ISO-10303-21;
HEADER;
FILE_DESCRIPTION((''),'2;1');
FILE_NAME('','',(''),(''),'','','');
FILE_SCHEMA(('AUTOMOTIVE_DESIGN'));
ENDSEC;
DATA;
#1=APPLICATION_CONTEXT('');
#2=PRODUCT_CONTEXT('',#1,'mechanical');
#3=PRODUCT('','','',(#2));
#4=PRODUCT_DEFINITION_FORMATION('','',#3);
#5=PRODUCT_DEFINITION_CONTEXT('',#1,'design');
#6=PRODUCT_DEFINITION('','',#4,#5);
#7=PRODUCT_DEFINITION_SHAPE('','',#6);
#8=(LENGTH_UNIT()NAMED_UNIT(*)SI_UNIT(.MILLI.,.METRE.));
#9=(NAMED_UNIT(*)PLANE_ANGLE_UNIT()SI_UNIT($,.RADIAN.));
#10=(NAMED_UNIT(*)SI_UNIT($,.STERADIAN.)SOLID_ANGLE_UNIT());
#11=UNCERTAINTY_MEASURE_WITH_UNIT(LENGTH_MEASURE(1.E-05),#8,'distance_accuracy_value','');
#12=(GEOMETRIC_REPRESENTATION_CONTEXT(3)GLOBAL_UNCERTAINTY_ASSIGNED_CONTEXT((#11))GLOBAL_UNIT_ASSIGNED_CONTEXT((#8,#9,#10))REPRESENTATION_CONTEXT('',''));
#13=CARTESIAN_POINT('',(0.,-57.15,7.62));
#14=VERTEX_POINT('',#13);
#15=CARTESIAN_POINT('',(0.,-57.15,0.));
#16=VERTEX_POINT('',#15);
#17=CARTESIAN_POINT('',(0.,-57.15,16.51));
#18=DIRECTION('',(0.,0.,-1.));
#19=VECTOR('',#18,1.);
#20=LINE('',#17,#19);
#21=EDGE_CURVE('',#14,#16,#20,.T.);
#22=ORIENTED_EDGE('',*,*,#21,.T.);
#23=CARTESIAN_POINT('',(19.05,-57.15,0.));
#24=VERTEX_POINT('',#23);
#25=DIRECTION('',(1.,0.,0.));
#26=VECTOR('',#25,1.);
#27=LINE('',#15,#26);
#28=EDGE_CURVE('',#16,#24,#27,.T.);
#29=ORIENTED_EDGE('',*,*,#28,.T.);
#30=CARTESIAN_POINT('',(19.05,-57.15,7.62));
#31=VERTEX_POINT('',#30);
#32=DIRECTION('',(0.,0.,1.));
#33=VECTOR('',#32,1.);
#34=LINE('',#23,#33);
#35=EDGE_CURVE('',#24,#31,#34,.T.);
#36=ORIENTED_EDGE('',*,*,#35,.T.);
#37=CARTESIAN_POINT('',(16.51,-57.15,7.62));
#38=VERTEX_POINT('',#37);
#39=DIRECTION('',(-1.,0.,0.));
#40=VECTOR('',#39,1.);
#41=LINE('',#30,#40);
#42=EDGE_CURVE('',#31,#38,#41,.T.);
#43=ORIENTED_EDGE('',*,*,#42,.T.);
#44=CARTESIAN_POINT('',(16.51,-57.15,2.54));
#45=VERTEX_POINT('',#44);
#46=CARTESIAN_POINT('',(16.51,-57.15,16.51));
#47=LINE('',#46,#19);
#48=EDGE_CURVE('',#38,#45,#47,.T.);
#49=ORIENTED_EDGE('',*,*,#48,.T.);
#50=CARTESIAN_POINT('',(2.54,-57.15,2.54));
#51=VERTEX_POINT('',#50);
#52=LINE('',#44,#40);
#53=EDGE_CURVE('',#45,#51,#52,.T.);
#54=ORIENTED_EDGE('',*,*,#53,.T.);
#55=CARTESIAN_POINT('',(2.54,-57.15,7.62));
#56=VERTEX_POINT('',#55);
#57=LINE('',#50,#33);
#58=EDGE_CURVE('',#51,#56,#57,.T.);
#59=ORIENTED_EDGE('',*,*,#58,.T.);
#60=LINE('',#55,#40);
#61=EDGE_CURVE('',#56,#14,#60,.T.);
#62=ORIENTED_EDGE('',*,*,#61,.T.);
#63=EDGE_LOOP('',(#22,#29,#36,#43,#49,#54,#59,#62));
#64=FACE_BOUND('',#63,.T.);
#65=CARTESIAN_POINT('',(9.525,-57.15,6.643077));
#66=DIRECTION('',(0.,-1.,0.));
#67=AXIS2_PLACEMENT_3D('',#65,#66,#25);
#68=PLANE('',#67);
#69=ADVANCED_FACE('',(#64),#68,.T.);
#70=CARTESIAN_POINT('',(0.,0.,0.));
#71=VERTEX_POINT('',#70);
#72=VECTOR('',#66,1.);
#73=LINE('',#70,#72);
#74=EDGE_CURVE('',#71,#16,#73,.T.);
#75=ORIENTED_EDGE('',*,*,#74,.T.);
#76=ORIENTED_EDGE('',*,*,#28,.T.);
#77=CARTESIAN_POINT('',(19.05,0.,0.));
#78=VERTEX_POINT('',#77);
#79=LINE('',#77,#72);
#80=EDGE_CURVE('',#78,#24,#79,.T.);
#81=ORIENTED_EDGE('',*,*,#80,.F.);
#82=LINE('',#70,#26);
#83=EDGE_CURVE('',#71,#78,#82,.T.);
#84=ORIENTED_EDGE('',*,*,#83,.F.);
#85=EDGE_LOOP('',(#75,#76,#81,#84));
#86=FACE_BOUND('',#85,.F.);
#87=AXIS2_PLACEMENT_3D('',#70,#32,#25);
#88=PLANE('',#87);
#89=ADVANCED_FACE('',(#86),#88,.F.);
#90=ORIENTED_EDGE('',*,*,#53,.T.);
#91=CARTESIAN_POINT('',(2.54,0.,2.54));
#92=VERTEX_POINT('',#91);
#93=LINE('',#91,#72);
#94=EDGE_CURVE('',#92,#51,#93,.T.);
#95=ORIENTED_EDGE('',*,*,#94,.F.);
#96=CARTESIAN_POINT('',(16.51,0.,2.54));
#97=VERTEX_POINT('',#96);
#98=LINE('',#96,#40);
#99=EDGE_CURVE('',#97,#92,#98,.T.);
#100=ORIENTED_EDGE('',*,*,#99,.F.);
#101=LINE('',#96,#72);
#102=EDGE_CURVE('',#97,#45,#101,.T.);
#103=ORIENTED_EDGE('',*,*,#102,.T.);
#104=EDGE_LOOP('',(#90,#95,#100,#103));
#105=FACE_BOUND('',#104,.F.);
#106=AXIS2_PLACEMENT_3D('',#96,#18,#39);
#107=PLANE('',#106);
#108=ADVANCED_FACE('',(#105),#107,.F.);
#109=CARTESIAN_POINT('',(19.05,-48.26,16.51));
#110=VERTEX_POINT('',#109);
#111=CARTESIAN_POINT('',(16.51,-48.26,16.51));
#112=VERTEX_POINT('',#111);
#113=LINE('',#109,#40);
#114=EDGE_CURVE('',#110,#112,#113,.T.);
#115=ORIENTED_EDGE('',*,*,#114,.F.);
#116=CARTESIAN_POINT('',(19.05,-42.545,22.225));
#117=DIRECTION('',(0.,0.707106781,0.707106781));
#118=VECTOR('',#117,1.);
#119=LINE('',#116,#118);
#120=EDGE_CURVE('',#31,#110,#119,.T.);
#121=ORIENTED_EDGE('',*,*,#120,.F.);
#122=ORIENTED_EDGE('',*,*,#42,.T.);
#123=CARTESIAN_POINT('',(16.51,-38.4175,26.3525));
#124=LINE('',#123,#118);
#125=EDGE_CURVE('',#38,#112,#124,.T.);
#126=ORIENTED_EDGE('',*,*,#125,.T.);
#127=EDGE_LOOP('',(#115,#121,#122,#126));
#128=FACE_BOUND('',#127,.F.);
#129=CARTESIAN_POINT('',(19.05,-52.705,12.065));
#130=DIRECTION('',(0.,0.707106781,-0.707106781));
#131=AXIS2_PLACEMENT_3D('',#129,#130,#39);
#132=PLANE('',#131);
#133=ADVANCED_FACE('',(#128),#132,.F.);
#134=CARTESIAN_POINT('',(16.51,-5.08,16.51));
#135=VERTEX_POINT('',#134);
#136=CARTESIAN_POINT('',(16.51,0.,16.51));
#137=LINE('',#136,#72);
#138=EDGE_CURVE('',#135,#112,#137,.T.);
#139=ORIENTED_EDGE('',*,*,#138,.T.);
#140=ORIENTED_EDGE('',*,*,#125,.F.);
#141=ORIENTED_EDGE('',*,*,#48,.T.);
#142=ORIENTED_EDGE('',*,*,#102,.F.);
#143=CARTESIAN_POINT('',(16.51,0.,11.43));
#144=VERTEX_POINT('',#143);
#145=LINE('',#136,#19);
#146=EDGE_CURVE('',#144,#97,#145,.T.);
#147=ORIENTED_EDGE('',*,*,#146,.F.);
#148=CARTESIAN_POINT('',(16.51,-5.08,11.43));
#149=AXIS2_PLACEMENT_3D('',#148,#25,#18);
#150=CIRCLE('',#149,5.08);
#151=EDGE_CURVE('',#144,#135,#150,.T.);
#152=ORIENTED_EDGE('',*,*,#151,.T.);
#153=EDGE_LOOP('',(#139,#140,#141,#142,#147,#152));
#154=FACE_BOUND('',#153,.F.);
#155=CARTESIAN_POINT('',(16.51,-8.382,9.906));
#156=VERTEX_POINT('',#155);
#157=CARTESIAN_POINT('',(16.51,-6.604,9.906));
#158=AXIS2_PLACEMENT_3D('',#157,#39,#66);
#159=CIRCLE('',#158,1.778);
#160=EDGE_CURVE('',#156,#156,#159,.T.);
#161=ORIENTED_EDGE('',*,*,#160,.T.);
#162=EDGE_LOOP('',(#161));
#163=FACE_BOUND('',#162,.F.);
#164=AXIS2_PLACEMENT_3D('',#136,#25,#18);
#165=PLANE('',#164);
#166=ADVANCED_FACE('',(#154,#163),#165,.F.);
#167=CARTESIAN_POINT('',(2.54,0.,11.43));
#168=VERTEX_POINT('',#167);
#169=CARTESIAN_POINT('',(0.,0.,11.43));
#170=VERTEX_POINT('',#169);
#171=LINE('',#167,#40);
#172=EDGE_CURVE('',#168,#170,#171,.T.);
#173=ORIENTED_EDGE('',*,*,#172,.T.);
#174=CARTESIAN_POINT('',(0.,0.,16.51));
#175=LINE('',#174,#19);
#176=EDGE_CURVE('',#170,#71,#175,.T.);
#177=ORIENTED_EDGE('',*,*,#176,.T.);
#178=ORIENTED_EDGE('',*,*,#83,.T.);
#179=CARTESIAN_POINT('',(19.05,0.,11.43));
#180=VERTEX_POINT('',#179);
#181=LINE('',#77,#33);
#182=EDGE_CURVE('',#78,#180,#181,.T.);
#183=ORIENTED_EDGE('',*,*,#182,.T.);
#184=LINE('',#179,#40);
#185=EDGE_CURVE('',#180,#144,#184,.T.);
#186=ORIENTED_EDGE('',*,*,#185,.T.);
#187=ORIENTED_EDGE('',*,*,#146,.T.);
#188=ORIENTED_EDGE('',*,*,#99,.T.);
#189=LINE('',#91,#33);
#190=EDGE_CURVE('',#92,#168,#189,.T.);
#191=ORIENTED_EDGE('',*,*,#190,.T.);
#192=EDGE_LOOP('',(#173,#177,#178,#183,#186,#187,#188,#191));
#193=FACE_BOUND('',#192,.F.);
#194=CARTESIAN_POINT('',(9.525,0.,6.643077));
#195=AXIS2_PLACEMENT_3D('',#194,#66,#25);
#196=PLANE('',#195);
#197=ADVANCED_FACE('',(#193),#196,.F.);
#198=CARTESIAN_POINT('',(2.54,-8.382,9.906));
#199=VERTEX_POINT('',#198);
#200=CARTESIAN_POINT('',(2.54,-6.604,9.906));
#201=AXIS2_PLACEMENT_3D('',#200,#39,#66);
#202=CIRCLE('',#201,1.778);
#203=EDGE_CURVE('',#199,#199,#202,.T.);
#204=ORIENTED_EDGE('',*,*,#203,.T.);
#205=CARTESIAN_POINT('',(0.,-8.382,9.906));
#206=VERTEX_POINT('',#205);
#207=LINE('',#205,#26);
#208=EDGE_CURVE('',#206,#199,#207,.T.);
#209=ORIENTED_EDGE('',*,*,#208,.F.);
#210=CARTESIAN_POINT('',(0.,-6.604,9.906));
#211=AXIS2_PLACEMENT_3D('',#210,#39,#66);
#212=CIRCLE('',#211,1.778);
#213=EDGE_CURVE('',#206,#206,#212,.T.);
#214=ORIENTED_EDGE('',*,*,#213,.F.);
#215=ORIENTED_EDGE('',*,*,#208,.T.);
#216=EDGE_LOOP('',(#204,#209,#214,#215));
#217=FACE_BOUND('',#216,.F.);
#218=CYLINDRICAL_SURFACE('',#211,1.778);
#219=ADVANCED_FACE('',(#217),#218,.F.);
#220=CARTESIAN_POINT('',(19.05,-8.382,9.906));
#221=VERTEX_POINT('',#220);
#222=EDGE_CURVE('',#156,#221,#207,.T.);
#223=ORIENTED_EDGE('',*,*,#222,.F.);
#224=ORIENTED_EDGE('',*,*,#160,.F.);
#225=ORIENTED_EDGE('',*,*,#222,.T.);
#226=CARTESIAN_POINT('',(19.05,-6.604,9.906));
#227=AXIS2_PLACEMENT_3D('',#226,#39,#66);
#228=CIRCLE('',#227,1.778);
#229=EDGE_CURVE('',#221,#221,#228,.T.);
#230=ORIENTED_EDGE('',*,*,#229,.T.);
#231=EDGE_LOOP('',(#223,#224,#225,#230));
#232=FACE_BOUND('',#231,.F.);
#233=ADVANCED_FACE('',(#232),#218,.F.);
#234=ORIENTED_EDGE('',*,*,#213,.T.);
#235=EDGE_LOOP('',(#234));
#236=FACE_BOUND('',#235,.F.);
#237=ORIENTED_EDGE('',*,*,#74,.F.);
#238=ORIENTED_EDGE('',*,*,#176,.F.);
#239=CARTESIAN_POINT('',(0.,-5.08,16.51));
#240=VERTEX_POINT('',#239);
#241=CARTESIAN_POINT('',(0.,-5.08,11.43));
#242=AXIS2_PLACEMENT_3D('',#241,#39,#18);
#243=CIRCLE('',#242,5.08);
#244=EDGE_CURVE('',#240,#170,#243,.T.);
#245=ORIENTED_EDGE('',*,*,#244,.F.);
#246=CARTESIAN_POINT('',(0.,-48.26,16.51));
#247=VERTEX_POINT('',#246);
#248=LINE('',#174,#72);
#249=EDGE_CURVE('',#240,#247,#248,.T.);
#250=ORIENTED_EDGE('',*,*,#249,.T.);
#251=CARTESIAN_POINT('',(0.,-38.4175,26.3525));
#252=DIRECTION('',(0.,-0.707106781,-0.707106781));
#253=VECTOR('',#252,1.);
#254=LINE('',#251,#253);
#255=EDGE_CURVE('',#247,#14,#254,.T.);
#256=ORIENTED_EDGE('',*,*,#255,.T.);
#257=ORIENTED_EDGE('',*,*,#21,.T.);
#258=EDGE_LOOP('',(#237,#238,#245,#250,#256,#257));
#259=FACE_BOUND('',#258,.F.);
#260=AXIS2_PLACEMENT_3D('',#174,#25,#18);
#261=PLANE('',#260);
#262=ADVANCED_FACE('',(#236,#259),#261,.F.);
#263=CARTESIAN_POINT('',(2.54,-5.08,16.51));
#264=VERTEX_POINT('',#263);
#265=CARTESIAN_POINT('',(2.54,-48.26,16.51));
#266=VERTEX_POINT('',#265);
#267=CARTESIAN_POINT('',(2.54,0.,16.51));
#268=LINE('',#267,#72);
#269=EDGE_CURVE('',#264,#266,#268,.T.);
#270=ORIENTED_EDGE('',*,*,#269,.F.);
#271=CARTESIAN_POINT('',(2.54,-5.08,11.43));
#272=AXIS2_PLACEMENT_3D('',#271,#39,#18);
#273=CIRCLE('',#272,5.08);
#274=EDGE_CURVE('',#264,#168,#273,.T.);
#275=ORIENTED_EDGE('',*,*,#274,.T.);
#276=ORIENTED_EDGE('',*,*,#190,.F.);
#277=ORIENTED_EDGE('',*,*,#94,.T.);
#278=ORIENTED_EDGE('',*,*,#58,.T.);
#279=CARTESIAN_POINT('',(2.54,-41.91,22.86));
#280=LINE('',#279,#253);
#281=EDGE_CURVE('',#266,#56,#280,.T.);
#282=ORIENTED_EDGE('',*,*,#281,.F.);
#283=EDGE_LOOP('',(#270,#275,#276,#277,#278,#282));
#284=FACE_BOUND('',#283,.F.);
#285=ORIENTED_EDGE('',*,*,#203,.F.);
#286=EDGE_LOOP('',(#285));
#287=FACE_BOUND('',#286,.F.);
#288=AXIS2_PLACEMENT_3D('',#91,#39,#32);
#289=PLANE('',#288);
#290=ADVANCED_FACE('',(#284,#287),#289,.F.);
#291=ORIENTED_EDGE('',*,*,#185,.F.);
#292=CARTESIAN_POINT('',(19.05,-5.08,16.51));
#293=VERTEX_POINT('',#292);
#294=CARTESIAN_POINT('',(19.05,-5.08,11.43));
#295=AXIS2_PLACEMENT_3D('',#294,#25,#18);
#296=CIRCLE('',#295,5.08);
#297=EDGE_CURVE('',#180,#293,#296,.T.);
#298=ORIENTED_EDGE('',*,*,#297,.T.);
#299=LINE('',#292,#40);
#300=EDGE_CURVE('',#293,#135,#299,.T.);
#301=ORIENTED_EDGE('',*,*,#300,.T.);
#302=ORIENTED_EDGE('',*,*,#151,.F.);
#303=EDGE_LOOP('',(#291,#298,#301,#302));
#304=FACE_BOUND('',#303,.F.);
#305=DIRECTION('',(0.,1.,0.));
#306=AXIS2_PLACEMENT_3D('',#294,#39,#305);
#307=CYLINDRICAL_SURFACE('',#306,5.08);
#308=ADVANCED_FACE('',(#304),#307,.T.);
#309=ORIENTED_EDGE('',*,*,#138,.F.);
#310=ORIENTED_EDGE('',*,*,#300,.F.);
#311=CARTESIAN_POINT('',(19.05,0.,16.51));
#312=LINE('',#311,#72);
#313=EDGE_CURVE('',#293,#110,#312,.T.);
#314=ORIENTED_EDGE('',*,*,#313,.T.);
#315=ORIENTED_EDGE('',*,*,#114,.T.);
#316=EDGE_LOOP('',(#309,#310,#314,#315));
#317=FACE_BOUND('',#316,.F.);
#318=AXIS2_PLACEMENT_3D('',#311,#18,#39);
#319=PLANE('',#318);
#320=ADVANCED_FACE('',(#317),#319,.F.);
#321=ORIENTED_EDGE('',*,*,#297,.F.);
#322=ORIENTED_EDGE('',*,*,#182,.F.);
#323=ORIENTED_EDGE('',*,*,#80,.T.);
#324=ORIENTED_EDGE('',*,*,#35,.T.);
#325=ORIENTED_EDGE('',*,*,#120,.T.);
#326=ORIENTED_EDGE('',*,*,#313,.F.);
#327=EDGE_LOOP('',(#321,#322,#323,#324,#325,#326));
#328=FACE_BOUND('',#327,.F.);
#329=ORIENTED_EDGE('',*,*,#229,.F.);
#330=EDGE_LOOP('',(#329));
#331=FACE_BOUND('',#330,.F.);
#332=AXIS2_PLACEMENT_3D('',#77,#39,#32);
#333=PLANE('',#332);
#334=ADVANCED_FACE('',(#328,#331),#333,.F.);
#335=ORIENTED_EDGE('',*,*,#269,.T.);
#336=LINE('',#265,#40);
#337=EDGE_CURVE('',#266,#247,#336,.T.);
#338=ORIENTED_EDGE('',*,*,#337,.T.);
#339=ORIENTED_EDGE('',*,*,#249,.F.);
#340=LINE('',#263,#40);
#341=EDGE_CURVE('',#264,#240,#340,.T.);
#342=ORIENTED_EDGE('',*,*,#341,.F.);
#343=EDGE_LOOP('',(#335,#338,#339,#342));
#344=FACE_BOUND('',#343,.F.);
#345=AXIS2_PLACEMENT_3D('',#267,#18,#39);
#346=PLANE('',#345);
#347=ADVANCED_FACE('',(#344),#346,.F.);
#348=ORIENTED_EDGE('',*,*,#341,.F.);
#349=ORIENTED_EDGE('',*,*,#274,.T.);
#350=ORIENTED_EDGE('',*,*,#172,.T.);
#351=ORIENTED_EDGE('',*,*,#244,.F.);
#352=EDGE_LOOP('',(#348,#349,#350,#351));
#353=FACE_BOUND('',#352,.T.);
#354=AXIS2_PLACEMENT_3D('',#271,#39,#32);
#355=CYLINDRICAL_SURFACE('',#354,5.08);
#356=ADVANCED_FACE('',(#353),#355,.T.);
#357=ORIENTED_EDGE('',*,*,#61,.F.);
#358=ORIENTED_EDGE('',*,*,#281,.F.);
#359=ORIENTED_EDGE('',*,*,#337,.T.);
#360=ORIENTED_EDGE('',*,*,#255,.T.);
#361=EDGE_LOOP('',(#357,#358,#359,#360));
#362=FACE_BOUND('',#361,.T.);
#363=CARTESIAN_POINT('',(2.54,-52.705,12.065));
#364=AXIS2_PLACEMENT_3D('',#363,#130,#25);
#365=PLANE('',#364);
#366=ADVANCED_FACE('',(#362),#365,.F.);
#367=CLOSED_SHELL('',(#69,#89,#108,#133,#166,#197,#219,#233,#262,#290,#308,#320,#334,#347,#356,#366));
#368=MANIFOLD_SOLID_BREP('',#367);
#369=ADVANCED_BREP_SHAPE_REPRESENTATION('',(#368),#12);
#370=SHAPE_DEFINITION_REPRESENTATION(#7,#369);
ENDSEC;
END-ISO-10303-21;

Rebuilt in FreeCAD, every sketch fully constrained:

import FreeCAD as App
import Part
import Sketcher
from FreeCAD import Vector
Q = App.Units.Quantity


def edges_at(feature, points):
    """Names of the edges that pass closest to the given points."""
    edges = feature.Shape.Edges
    near = lambda p: min(range(len(edges)), key=lambda i: edges[i].distToShape(Part.Vertex(*p))[0])
    return sorted({f"Edge{near(p) + 1}" for p in points})

doc = App.newDocument("Part")
body = doc.addObject("PartDesign::Body", "Body")

sketch1 = body.newObject("Sketcher::SketchObject", "Sketch")
sketch1.AttachmentSupport = (doc.getObject("XZ_Plane"), [""])
sketch1.MapMode = "FlatFace"
sketch1.addGeometry([
    Part.LineSegment(Vector(0, 16.51, 0), Vector(0, 0, 0)),
    Part.LineSegment(Vector(0, 0, 0), Vector(19.05, 0, 0)),
    Part.LineSegment(Vector(19.05, 0, 0), Vector(19.05, 16.51, 0)),
    Part.LineSegment(Vector(19.05, 16.51, 0), Vector(16.51, 16.51, 0)),
    Part.LineSegment(Vector(16.51, 16.51, 0), Vector(16.51, 2.54, 0)),
    Part.LineSegment(Vector(16.51, 2.54, 0), Vector(2.54, 2.54, 0)),
    Part.LineSegment(Vector(2.54, 2.54, 0), Vector(2.54, 16.51, 0)),
    Part.LineSegment(Vector(2.54, 16.51, 0), Vector(0, 16.51, 0)),
], False)
sketch1.addConstraint([
    Sketcher.Constraint("Coincident", 0, 2, 1, 1),
    Sketcher.Constraint("Coincident", 1, 2, 2, 1),
    Sketcher.Constraint("Coincident", 2, 2, 3, 1),
    Sketcher.Constraint("Coincident", 3, 2, 4, 1),
    Sketcher.Constraint("Coincident", 4, 2, 5, 1),
    Sketcher.Constraint("Coincident", 5, 2, 6, 1),
    Sketcher.Constraint("Coincident", 6, 2, 7, 1),
    Sketcher.Constraint("Coincident", 7, 2, 0, 1),
    Sketcher.Constraint("Vertical", 0),
    Sketcher.Constraint("Horizontal", 1),
    Sketcher.Constraint("Vertical", 2),
    Sketcher.Constraint("Horizontal", 3),
    Sketcher.Constraint("Vertical", 4),
    Sketcher.Constraint("Horizontal", 5),
    Sketcher.Constraint("Vertical", 6),
    Sketcher.Constraint("Horizontal", 7),
    Sketcher.Constraint("Coincident", 0, 2, -1, 1),
    Sketcher.Constraint("Horizontal", 3, 2, 6, 2),
    Sketcher.Constraint("Equal", 3, 7),
    Sketcher.Constraint("Equal", 5, 4),
    Sketcher.Constraint("DistanceX", 3, 2, 3, 1, Q("0.1 in")),
    Sketcher.Constraint("DistanceX", 1, 1, 1, 2, Q("0.75 in")),
    Sketcher.Constraint("DistanceY", 0, 2, 0, 1, Q("0.65 in")),
])
pad1 = body.newObject("PartDesign::Pad", "Pad")
pad1.Profile = sketch1
pad1.Length = Q("2.25 in")

sketch2 = body.newObject("Sketcher::SketchObject", "Sketch001")
sketch2.AttachmentSupport = (doc.getObject("YZ_Plane"), [""])
sketch2.MapMode = "FlatFace"
sketch2.addGeometry(Part.Circle(Vector(-6.604, 9.906, 0), Vector(0, 0, 1), 1.778), False)
sketch2.addConstraint([
    Sketcher.Constraint("Diameter", 0, Q("0.14 in")),
    Sketcher.Constraint("DistanceX", 0, 3, -1, 1, Q("0.26 in")),
    Sketcher.Constraint("DistanceY", -1, 1, 0, 3, Q("0.39 in")),
])
pocket1 = body.newObject("PartDesign::Pocket", "Pocket")
pocket1.Profile = sketch2
pocket1.Type = "ThroughAll"
pocket1.Reversed = True
doc.recompute()

fillet = body.newObject("PartDesign::Fillet", "Fillet")
fillet.Base = (pocket1, edges_at(pocket1, [(17.78, 0, 16.51), (1.27, 0, 16.51)]))
fillet.Radius = Q("0.2 in")
doc.recompute()

chamfer = body.newObject("PartDesign::Chamfer", "Chamfer")
chamfer.Base = (fillet, edges_at(fillet, [(1.27, -57.15, 16.51), (17.78, -57.15, 16.51)]))
chamfer.Size = Q("0.35 in")

doc.recompute()
